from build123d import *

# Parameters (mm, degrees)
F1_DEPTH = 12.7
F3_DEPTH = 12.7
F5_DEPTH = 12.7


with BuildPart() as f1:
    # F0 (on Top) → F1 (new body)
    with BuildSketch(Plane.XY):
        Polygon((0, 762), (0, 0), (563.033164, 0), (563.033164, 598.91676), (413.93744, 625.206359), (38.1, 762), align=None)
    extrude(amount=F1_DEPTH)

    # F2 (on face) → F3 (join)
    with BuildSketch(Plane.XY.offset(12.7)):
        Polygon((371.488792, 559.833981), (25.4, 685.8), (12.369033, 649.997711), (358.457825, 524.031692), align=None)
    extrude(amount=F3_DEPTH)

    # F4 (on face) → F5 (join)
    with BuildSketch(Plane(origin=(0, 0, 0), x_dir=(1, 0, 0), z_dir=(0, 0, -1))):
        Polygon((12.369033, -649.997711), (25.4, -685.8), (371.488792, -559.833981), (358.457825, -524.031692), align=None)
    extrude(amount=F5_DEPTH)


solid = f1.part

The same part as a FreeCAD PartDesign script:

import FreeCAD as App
import Part
import Sketcher

V = App.Vector
Q = App.Units.Quantity

doc = App.newDocument("Part")
body = doc.addObject("PartDesign::Body", "Body")

# Sketch on XY plane
sketch1 = body.newObject("Sketcher::SketchObject", "Sketch")
sketch1.AttachmentSupport = (doc.getObject("XY_Plane"), [""])
sketch1.MapMode = "FlatFace"
sketch1.addGeometry(Part.LineSegment(V(0, 762, 0), V(0, 0, 0)), False)
sketch1.addGeometry(Part.LineSegment(V(0, 0, 0), V(563, 0, 0)), False)
sketch1.addGeometry(Part.LineSegment(V(563, 0, 0), V(563, 599, 0)), False)
sketch1.addGeometry(Part.LineSegment(V(563, 599, 0), V(414, 625, 0)), False)
sketch1.addGeometry(Part.LineSegment(V(414, 625, 0), V(38, 762, 0)), False)
sketch1.addGeometry(Part.LineSegment(V(38, 762, 0), V(0, 762, 0)), False)
sketch1.addConstraint(Sketcher.Constraint("Coincident", 0, 2, 1, 1))
sketch1.addConstraint(Sketcher.Constraint("Coincident", 1, 2, 2, 1))
sketch1.addConstraint(Sketcher.Constraint("Coincident", 2, 2, 3, 1))
sketch1.addConstraint(Sketcher.Constraint("Coincident", 3, 2, 4, 1))
sketch1.addConstraint(Sketcher.Constraint("Coincident", 4, 2, 5, 1))
sketch1.addConstraint(Sketcher.Constraint("Coincident", 5, 2, 0, 1))
sketch1.addConstraint(Sketcher.Constraint("Vertical", 0))
sketch1.addConstraint(Sketcher.Constraint("Horizontal", 1))
sketch1.addConstraint(Sketcher.Constraint("Vertical", 2))
sketch1.addConstraint(Sketcher.Constraint("Horizontal", 5))
sketch1.addConstraint(Sketcher.Constraint("Coincident", 0, 2, -1, 1))
sketch1.addConstraint(Sketcher.Constraint("DistanceY", 0, 2, 0, 1, Q("30 in")))
sketch1.addConstraint(Sketcher.Constraint("DistanceX", 5, 2, 5, 1, Q("1.5 in")))
sketch1.addConstraint(Sketcher.Constraint("Angle", 3, Q("170 deg")))
sketch1.addConstraint(Sketcher.Constraint("Angle", 4, Q("160 deg")))
sketch1.addConstraint(Sketcher.Constraint("DistanceY", 2, 1, 2, 2, Q("23.5794 in")))
sketch1.addConstraint(Sketcher.Constraint("DistanceY", 2, 2, 3, 2, 26.289599))
pad1 = body.newObject("PartDesign::Pad", "Pad")
pad1.Profile = sketch1
pad1.Length = Q("0.5 in")

# Sketch on XY plane
sketch2 = body.newObject("Sketcher::SketchObject", "Sketch001")
sketch2.AttachmentSupport = (doc.getObject("XY_Plane"), [""])
sketch2.MapMode = "FlatFace"
sketch2.AttachmentOffset = App.Placement(V(0, 0, 0.5 * 25.4), App.Rotation())
sketch2.addGeometry(Part.LineSegment(V(371, 560, 0), V(25, 686, 0)), False)
sketch2.addGeometry(Part.LineSegment(V(25, 686, 0), V(12, 650, 0)), False)
sketch2.addGeometry(Part.LineSegment(V(12, 650, 0), V(358, 524, 0)), False)
sketch2.addGeometry(Part.LineSegment(V(358, 524, 0), V(371, 560, 0)), False)
sketch2.addConstraint(Sketcher.Constraint("Coincident", 0, 2, 1, 1))
sketch2.addConstraint(Sketcher.Constraint("Coincident", 1, 2, 2, 1))
sketch2.addConstraint(Sketcher.Constraint("Coincident", 2, 2, 3, 1))
sketch2.addConstraint(Sketcher.Constraint("Coincident", 3, 2, 0, 1))
sketch2.addConstraint(Sketcher.Constraint("Perpendicular", 0, 1))
sketch2.addConstraint(Sketcher.Constraint("Perpendicular", 1, 2))
sketch2.addConstraint(Sketcher.Constraint("Perpendicular", 2, 3))
sketch2.addConstraint(Sketcher.Constraint("DistanceX", -1, 1, 0, 2, Q("1 in")))
sketch2.addConstraint(Sketcher.Constraint("DistanceY", -1, 1, 0, 2, Q("27 in")))
sketch2.addConstraint(Sketcher.Constraint("Angle", 0, Q("160 deg")))
sketch2.addConstraint(Sketcher.Constraint("Distance", 0, Q("14.5 in")))
sketch2.addConstraint(Sketcher.Constraint("Distance", 1, Q("1.5 in")))
pad2 = body.newObject("PartDesign::Pad", "Pad001")
pad2.Profile = sketch2
pad2.Length = Q("0.5 in")

# Sketch on XY plane
sketch3 = body.newObject("Sketcher::SketchObject", "Sketch002")
sketch3.AttachmentSupport = (doc.getObject("XY_Plane"), [""])
sketch3.MapMode = "FlatFace"
sketch3.addGeometry(Part.LineSegment(V(12, 650, 0), V(25, 686, 0)), False)
sketch3.addGeometry(Part.LineSegment(V(25, 686, 0), V(371, 560, 0)), False)
sketch3.addGeometry(Part.LineSegment(V(371, 560, 0), V(358, 524, 0)), False)
sketch3.addGeometry(Part.LineSegment(V(358, 524, 0), V(12, 650, 0)), False)
sketch3.addConstraint(Sketcher.Constraint("Coincident", 0, 2, 1, 1))
sketch3.addConstraint(Sketcher.Constraint("Coincident", 1, 2, 2, 1))
sketch3.addConstraint(Sketcher.Constraint("Coincident", 2, 2, 3, 1))
sketch3.addConstraint(Sketcher.Constraint("Coincident", 3, 2, 0, 1))
sketch3.addConstraint(Sketcher.Constraint("Perpendicular", 0, 1))
sketch3.addConstraint(Sketcher.Constraint("Perpendicular", 1, 2))
sketch3.addConstraint(Sketcher.Constraint("Perpendicular", 2, 3))
sketch3.addConstraint(Sketcher.Constraint("DistanceX", -1, 1, 0, 2, Q("1 in")))
sketch3.addConstraint(Sketcher.Constraint("DistanceY", -1, 1, 0, 2, Q("27 in")))
sketch3.addConstraint(Sketcher.Constraint("Angle", 0, Q("70.000001 deg")))
sketch3.addConstraint(Sketcher.Constraint("Distance", 0, Q("1.5 in")))
sketch3.addConstraint(Sketcher.Constraint("Distance", 1, Q("14.5 in")))
pad3 = body.newObject("PartDesign::Pad", "Pad002")
pad3.Profile = sketch3
pad3.Length = Q("0.5 in")
pad3.Reversed = True

doc.recompute()
